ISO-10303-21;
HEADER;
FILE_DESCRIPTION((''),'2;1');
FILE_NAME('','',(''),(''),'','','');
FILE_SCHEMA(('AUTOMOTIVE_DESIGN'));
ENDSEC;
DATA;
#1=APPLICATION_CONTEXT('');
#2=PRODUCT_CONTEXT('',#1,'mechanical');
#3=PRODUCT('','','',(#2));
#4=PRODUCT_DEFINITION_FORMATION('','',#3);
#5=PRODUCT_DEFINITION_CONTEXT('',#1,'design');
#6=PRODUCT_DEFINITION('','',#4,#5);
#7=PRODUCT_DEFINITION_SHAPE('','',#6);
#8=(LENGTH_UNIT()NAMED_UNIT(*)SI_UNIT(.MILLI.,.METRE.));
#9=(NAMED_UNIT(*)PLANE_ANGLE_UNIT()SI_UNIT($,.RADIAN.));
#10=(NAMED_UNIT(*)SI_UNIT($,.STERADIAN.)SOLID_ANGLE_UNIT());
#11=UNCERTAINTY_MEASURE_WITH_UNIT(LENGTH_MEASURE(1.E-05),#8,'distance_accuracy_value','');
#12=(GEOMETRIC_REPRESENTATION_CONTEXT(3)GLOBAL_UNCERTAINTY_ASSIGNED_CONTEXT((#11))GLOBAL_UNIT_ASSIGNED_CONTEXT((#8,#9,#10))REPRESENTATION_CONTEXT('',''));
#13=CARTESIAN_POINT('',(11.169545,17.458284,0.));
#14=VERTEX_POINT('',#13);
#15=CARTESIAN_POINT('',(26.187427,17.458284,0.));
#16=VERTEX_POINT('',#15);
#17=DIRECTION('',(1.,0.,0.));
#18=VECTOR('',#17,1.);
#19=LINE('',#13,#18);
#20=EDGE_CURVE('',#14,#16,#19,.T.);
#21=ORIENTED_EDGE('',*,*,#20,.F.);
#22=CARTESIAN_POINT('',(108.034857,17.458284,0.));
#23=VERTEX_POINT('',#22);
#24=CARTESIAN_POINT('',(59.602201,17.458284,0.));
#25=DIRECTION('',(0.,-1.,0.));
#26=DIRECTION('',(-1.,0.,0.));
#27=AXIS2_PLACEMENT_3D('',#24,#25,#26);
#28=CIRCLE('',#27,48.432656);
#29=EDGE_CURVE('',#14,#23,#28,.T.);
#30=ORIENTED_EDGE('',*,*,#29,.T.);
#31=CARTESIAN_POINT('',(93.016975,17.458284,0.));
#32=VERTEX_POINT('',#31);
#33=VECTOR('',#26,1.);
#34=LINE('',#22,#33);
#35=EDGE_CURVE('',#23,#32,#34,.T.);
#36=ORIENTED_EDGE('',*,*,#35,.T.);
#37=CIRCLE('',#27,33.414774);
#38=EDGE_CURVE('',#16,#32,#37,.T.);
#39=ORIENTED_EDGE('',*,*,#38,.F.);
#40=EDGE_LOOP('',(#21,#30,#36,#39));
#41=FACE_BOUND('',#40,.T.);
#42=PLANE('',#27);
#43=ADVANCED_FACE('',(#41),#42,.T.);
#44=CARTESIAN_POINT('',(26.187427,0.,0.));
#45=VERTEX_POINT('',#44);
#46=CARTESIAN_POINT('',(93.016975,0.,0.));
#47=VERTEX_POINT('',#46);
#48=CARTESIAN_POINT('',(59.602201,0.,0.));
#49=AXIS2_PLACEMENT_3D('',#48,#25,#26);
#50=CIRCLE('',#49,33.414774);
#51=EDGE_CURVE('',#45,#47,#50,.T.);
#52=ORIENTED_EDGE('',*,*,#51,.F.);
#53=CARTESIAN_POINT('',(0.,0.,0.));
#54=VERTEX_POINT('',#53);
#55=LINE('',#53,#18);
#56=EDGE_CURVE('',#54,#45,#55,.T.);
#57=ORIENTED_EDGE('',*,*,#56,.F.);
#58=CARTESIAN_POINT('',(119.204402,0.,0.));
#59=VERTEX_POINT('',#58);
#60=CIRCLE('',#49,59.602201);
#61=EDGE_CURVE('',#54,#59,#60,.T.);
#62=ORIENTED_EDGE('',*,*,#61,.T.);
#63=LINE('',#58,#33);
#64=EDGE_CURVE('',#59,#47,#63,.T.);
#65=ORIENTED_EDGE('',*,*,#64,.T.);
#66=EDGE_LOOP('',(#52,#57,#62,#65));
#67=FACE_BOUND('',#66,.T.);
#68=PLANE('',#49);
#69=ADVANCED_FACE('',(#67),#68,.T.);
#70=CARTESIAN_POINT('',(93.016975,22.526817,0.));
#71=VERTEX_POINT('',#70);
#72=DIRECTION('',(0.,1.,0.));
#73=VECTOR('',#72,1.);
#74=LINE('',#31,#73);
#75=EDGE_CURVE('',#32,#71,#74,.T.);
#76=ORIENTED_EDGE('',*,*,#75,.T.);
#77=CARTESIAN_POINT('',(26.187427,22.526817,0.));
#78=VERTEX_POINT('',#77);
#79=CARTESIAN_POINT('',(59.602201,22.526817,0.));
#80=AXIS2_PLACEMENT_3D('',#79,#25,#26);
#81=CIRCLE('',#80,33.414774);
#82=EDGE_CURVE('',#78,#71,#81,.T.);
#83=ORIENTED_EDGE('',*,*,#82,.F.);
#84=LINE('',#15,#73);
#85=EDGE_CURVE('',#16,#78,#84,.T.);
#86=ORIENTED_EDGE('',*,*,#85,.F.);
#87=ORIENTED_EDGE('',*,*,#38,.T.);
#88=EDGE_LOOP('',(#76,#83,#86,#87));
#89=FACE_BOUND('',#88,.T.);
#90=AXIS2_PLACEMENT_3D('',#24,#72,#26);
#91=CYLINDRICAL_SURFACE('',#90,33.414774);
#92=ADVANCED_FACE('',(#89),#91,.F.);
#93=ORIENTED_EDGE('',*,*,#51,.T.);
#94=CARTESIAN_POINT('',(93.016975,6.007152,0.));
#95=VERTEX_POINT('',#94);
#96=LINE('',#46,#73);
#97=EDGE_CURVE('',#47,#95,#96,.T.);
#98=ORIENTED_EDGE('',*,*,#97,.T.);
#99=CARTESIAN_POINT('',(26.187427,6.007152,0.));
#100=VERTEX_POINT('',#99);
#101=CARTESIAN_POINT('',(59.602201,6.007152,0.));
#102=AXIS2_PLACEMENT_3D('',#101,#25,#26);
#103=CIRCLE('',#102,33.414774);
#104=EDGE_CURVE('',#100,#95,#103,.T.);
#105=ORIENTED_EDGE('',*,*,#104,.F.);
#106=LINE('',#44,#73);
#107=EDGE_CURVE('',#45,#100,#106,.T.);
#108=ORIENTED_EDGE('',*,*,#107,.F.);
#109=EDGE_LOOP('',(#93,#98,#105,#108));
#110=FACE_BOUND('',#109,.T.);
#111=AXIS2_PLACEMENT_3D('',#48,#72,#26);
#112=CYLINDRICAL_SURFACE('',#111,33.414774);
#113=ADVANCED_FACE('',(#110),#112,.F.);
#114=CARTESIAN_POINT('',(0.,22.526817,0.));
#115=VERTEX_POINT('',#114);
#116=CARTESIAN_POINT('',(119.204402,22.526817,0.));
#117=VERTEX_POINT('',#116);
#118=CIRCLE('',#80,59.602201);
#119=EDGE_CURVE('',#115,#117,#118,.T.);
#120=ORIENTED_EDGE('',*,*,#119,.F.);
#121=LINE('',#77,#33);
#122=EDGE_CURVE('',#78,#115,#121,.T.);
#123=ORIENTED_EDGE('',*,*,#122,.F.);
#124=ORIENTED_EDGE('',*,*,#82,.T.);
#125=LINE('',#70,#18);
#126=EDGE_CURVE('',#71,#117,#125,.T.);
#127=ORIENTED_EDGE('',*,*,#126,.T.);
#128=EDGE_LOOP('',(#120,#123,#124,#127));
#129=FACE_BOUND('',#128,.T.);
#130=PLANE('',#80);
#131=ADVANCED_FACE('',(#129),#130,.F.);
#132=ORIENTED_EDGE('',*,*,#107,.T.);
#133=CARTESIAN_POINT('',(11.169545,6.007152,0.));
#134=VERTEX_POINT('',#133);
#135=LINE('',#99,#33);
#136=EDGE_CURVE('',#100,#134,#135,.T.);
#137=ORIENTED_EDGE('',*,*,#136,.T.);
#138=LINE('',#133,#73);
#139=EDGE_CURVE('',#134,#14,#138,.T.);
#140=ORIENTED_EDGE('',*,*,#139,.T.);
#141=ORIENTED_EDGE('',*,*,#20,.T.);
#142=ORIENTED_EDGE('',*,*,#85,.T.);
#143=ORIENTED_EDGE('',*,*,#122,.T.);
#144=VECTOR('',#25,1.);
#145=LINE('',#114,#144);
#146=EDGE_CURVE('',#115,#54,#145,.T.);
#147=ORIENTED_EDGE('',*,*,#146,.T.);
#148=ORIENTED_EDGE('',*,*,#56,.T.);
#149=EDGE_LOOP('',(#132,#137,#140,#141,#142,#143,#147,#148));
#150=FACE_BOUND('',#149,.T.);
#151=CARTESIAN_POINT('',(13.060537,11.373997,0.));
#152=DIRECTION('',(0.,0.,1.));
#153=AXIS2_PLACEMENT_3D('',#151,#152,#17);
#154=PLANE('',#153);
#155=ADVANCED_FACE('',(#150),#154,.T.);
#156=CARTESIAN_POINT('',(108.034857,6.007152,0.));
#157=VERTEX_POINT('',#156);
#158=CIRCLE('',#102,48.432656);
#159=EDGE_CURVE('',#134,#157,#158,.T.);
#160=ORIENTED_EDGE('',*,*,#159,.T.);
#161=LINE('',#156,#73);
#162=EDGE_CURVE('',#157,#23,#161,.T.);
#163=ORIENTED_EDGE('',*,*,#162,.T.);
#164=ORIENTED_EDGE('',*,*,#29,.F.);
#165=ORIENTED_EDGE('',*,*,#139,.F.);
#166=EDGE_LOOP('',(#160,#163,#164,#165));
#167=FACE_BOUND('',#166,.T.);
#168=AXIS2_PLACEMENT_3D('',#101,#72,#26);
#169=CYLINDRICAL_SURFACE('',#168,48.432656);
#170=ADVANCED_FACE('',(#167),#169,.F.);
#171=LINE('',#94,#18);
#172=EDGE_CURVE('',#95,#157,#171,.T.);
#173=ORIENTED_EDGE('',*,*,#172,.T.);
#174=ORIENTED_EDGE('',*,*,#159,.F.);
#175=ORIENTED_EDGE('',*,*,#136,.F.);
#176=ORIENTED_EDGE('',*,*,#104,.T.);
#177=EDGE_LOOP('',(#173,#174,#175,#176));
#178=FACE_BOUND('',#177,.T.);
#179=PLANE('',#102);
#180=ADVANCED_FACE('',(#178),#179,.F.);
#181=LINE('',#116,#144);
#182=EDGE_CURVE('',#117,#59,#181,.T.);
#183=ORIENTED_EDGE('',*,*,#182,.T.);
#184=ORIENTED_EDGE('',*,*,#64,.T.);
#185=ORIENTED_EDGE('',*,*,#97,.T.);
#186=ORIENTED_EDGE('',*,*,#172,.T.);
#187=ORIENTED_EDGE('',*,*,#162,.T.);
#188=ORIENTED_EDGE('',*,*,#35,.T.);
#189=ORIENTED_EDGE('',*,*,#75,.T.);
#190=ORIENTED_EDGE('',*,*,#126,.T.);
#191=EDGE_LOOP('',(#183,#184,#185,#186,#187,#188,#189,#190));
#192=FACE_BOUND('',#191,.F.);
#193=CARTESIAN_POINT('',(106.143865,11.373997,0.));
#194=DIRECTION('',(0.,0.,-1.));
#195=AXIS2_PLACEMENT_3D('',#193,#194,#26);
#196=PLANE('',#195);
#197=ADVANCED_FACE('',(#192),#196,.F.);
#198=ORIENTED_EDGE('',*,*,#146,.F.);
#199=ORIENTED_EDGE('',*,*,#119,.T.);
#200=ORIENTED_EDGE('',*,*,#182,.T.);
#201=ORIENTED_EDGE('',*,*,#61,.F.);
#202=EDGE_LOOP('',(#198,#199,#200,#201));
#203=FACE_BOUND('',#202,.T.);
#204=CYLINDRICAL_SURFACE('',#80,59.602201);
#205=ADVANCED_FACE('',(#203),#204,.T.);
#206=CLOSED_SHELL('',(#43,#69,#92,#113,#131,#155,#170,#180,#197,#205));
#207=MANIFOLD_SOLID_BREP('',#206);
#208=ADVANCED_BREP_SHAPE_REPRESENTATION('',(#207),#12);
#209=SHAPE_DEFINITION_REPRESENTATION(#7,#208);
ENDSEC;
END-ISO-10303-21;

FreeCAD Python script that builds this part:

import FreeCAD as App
import Part
import Sketcher

V = App.Vector

doc = App.newDocument("Part")
body = doc.addObject("PartDesign::Body", "Body")

# Sketch on XY plane
sketch1 = body.newObject("Sketcher::SketchObject", "Sketch")
sketch1.AttachmentSupport = (doc.getObject("XY_Plane"), [""])
sketch1.MapMode = "FlatFace"
sketch1.addGeometry(Part.LineSegment(V(26, 23, 0), V(0, 23, 0)), False)
sketch1.addGeometry(Part.LineSegment(V(0, 23, 0), V(0, 0, 0)), False)
sketch1.addGeometry(Part.LineSegment(V(0, 0, 0), V(26, 0, 0)), False)
sketch1.addGeometry(Part.LineSegment(V(26, 0, 0), V(26, 6, 0)), False)
sketch1.addGeometry(Part.LineSegment(V(26, 6, 0), V(11, 6, 0)), False)
sketch1.addGeometry(Part.LineSegment(V(11, 6, 0), V(11, 17, 0)), False)
sketch1.addGeometry(Part.LineSegment(V(11, 17, 0), V(26, 17, 0)), False)
sketch1.addGeometry(Part.LineSegment(V(26, 17, 0), V(26, 23, 0)), False)
sketch1.addGeometry(Part.LineSegment(V(60, 23, 0), V(60, 0, 0)), True)  # axis
sketch1.addConstraint(Sketcher.Constraint("Coincident", 0, 2, 1, 1))
sketch1.addConstraint(Sketcher.Constraint("Coincident", 1, 2, 2, 1))
sketch1.addConstraint(Sketcher.Constraint("Coincident", 2, 2, 3, 1))
sketch1.addConstraint(Sketcher.Constraint("Coincident", 3, 2, 4, 1))
sketch1.addConstraint(Sketcher.Constraint("Coincident", 4, 2, 5, 1))
sketch1.addConstraint(Sketcher.Constraint("Coincident", 5, 2, 6, 1))
sketch1.addConstraint(Sketcher.Constraint("Coincident", 6, 2, 7, 1))
sketch1.addConstraint(Sketcher.Constraint("Coincident", 7, 2, 0, 1))
sketch1.addConstraint(Sketcher.Constraint("Horizontal", 0))
sketch1.addConstraint(Sketcher.Constraint("Vertical", 1))
sketch1.addConstraint(Sketcher.Constraint("Horizontal", 2))
sketch1.addConstraint(Sketcher.Constraint("Vertical", 3))
sketch1.addConstraint(Sketcher.Constraint("Horizontal", 4))
sketch1.addConstraint(Sketcher.Constraint("Vertical", 5))
sketch1.addConstraint(Sketcher.Constraint("Horizontal", 6))
sketch1.addConstraint(Sketcher.Constraint("Vertical", 7))
sketch1.addConstraint(Sketcher.Constraint("Vertical", 8))
sketch1.addConstraint(Sketcher.Constraint("Coincident", 1, 2, -1, 1))
sketch1.addConstraint(Sketcher.Constraint("PointOnObject", 8, 2, -1))
sketch1.addConstraint(Sketcher.Constraint("Horizontal", 7, 2, 8, 1))
sketch1.addConstraint(Sketcher.Constraint("Vertical", 3, 2, 6, 2))
sketch1.addConstraint(Sketcher.Constraint("DistanceY", 3, 1, 3, 2, 6.007152))
sketch1.addConstraint(Sketcher.Constraint("DistanceX", -1, 1, 8, 1, 59.602201))
sketch1.addConstraint(Sketcher.Constraint("DistanceX", 0, 2, 0, 1, 26.187427))
sketch1.addConstraint(Sketcher.Constraint("DistanceX", 4, 2, 4, 1, 15.017882))
sketch1.addConstraint(Sketcher.Constraint("DistanceY", 1, 2, 1, 1, 22.526817))
sketch1.addConstraint(Sketcher.Constraint("DistanceY", 5, 1, 5, 2, 11.451132))
revolution = body.newObject("PartDesign::Revolution", "Revolution")
revolution.Profile = sketch1
revolution.ReferenceAxis = (sketch1, ["Axis0"])
revolution.Angle = 180

doc.recompute()
